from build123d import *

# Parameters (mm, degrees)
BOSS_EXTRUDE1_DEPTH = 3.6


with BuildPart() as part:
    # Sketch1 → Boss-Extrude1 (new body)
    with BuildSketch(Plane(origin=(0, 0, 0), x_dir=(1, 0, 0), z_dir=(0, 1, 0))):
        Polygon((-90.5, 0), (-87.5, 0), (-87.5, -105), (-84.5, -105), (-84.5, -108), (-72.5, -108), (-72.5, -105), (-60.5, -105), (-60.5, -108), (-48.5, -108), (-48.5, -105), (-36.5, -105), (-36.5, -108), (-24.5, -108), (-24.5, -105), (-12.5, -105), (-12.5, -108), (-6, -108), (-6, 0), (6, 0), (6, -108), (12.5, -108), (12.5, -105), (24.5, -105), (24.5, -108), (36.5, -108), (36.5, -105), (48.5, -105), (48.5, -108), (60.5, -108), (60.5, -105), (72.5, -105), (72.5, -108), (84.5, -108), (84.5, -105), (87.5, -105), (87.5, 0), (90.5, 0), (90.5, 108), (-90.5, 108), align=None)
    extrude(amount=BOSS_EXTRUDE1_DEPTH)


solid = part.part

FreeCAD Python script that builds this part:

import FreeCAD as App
import Part
import Sketcher
from FreeCAD import Vector
Q = App.Units.Quantity

doc = App.newDocument("Part")
params = doc.addObject("Spreadsheet::Sheet", "Params")
for row, (alias, value) in enumerate([
    ("sketch1_width", "3 mm"),
    ("sketch1_width2", "12 mm"),
    ("sketch1_width3", "181 mm"),
    ("sketch1_height", "105 mm"),
    ("pad1_length", "3.6 mm"),
], start=1):
    params.set(f"A{row}", alias)
    params.set(f"B{row}", "=" + value)
    params.setAlias(f"B{row}", alias)

body = doc.addObject("PartDesign::Body", "Body")

# Sketch on XZ plane
sketch1 = doc.addObject("Sketcher::SketchObject", "Sketch")
body.addObject(sketch1)
sketch1.AttachmentSupport = (doc.XZ_Plane, [""])
sketch1.MapMode = "FlatFace"
sketch1.addGeometry(Part.LineSegment(Vector(-90.5, 0, 0), Vector(-87.5, 0, 0)), False)
sketch1.addGeometry(Part.LineSegment(Vector(-87.5, 0, 0), Vector(-87.5, 105, 0)), False)
sketch1.addGeometry(Part.LineSegment(Vector(-87.5, 105, 0), Vector(-84.5, 105, 0)), False)
sketch1.addGeometry(Part.LineSegment(Vector(-84.5, 105, 0), Vector(-84.5, 108, 0)), False)
sketch1.addGeometry(Part.LineSegment(Vector(-84.5, 108, 0), Vector(-72.5, 108, 0)), False)
sketch1.addGeometry(Part.LineSegment(Vector(-72.5, 108, 0), Vector(-72.5, 105, 0)), False)
sketch1.addGeometry(Part.LineSegment(Vector(-72.5, 105, 0), Vector(-60.5, 105, 0)), False)
sketch1.addGeometry(Part.LineSegment(Vector(-60.5, 105, 0), Vector(-60.5, 108, 0)), False)
sketch1.addGeometry(Part.LineSegment(Vector(-60.5, 108, 0), Vector(-48.5, 108, 0)), False)
sketch1.addGeometry(Part.LineSegment(Vector(-48.5, 108, 0), Vector(-48.5, 105, 0)), False)
sketch1.addGeometry(Part.LineSegment(Vector(-48.5, 105, 0), Vector(-36.5, 105, 0)), False)
sketch1.addGeometry(Part.LineSegment(Vector(-36.5, 105, 0), Vector(-36.5, 108, 0)), False)
sketch1.addGeometry(Part.LineSegment(Vector(-36.5, 108, 0), Vector(-24.5, 108, 0)), False)
sketch1.addGeometry(Part.LineSegment(Vector(-24.5, 108, 0), Vector(-24.5, 105, 0)), False)
sketch1.addGeometry(Part.LineSegment(Vector(-24.5, 105, 0), Vector(-12.5, 105, 0)), False)
sketch1.addGeometry(Part.LineSegment(Vector(-12.5, 105, 0), Vector(-12.5, 108, 0)), False)
sketch1.addGeometry(Part.LineSegment(Vector(-12.5, 108, 0), Vector(-6, 108, 0)), False)
sketch1.addGeometry(Part.LineSegment(Vector(-6, 108, 0), Vector(-6, 0, 0)), False)
sketch1.addGeometry(Part.LineSegment(Vector(-6, 0, 0), Vector(6, 0, 0)), False)
sketch1.addGeometry(Part.LineSegment(Vector(6, 0, 0), Vector(6, 108, 0)), False)
sketch1.addGeometry(Part.LineSegment(Vector(6, 108, 0), Vector(12.5, 108, 0)), False)
sketch1.addGeometry(Part.LineSegment(Vector(12.5, 108, 0), Vector(12.5, 105, 0)), False)
sketch1.addGeometry(Part.LineSegment(Vector(12.5, 105, 0), Vector(24.5, 105, 0)), False)
sketch1.addGeometry(Part.LineSegment(Vector(24.5, 105, 0), Vector(24.5, 108, 0)), False)
sketch1.addGeometry(Part.LineSegment(Vector(24.5, 108, 0), Vector(36.5, 108, 0)), False)
sketch1.addGeometry(Part.LineSegment(Vector(36.5, 108, 0), Vector(36.5, 105, 0)), False)
sketch1.addGeometry(Part.LineSegment(Vector(36.5, 105, 0), Vector(48.5, 105, 0)), False)
sketch1.addGeometry(Part.LineSegment(Vector(48.5, 105, 0), Vector(48.5, 108, 0)), False)
sketch1.addGeometry(Part.LineSegment(Vector(48.5, 108, 0), Vector(60.5, 108, 0)), False)
sketch1.addGeometry(Part.LineSegment(Vector(60.5, 108, 0), Vector(60.5, 105, 0)), False)
sketch1.addGeometry(Part.LineSegment(Vector(60.5, 105, 0), Vector(72.5, 105, 0)), False)
sketch1.addGeometry(Part.LineSegment(Vector(72.5, 105, 0), Vector(72.5, 108, 0)), False)
sketch1.addGeometry(Part.LineSegment(Vector(72.5, 108, 0), Vector(84.5, 108, 0)), False)
sketch1.addGeometry(Part.LineSegment(Vector(84.5, 108, 0), Vector(84.5, 105, 0)), False)
sketch1.addGeometry(Part.LineSegment(Vector(84.5, 105, 0), Vector(87.5, 105, 0)), False)
sketch1.addGeometry(Part.LineSegment(Vector(87.5, 105, 0), Vector(87.5, 0, 0)), False)
sketch1.addGeometry(Part.LineSegment(Vector(87.5, 0, 0), Vector(90.5, 0, 0)), False)
sketch1.addGeometry(Part.LineSegment(Vector(90.5, 0, 0), Vector(90.5, -108, 0)), False)
sketch1.addGeometry(Part.LineSegment(Vector(90.5, -108, 0), Vector(-90.5, -108, 0)), False)
sketch1.addGeometry(Part.LineSegment(Vector(-90.5, -108, 0), Vector(-90.5, 0, 0)), False)
sketch1.addConstraint(Sketcher.Constraint("Coincident", 0, 2, 1, 1))
sketch1.addConstraint(Sketcher.Constraint("Coincident", 1, 2, 2, 1))
sketch1.addConstraint(Sketcher.Constraint("Coincident", 2, 2, 3, 1))
sketch1.addConstraint(Sketcher.Constraint("Coincident", 3, 2, 4, 1))
sketch1.addConstraint(Sketcher.Constraint("Coincident", 4, 2, 5, 1))
sketch1.addConstraint(Sketcher.Constraint("Coincident", 5, 2, 6, 1))
sketch1.addConstraint(Sketcher.Constraint("Coincident", 6, 2, 7, 1))
sketch1.addConstraint(Sketcher.Constraint("Coincident", 7, 2, 8, 1))
sketch1.addConstraint(Sketcher.Constraint("Coincident", 8, 2, 9, 1))
sketch1.addConstraint(Sketcher.Constraint("Coincident", 9, 2, 10, 1))
sketch1.addConstraint(Sketcher.Constraint("Coincident", 10, 2, 11, 1))
sketch1.addConstraint(Sketcher.Constraint("Coincident", 11, 2, 12, 1))
sketch1.addConstraint(Sketcher.Constraint("Coincident", 12, 2, 13, 1))
sketch1.addConstraint(Sketcher.Constraint("Coincident", 13, 2, 14, 1))
sketch1.addConstraint(Sketcher.Constraint("Coincident", 14, 2, 15, 1))
sketch1.addConstraint(Sketcher.Constraint("Coincident", 15, 2, 16, 1))
sketch1.addConstraint(Sketcher.Constraint("Coincident", 16, 2, 17, 1))
sketch1.addConstraint(Sketcher.Constraint("Coincident", 17, 2, 18, 1))
sketch1.addConstraint(Sketcher.Constraint("Coincident", 18, 2, 19, 1))
sketch1.addConstraint(Sketcher.Constraint("Coincident", 19, 2, 20, 1))
sketch1.addConstraint(Sketcher.Constraint("Coincident", 20, 2, 21, 1))
sketch1.addConstraint(Sketcher.Constraint("Coincident", 21, 2, 22, 1))
sketch1.addConstraint(Sketcher.Constraint("Coincident", 22, 2, 23, 1))
sketch1.addConstraint(Sketcher.Constraint("Coincident", 23, 2, 24, 1))
sketch1.addConstraint(Sketcher.Constraint("Coincident", 24, 2, 25, 1))
sketch1.addConstraint(Sketcher.Constraint("Coincident", 25, 2, 26, 1))
sketch1.addConstraint(Sketcher.Constraint("Coincident", 26, 2, 27, 1))
sketch1.addConstraint(Sketcher.Constraint("Coincident", 27, 2, 28, 1))
sketch1.addConstraint(Sketcher.Constraint("Coincident", 28, 2, 29, 1))
sketch1.addConstraint(Sketcher.Constraint("Coincident", 29, 2, 30, 1))
sketch1.addConstraint(Sketcher.Constraint("Coincident", 30, 2, 31, 1))
sketch1.addConstraint(Sketcher.Constraint("Coincident", 31, 2, 32, 1))
sketch1.addConstraint(Sketcher.Constraint("Coincident", 32, 2, 33, 1))
sketch1.addConstraint(Sketcher.Constraint("Coincident", 33, 2, 34, 1))
sketch1.addConstraint(Sketcher.Constraint("Coincident", 34, 2, 35, 1))
sketch1.addConstraint(Sketcher.Constraint("Coincident", 35, 2, 36, 1))
sketch1.addConstraint(Sketcher.Constraint("Coincident", 36, 2, 37, 1))
sketch1.addConstraint(Sketcher.Constraint("Coincident", 37, 2, 38, 1))
sketch1.addConstraint(Sketcher.Constraint("Coincident", 38, 2, 39, 1))
sketch1.addConstraint(Sketcher.Constraint("Coincident", 39, 2, 0, 1))
sketch1.addConstraint(Sketcher.Constraint("Horizontal", 0))
sketch1.addConstraint(Sketcher.Constraint("Vertical", 1))
sketch1.addConstraint(Sketcher.Constraint("Horizontal", 2))
sketch1.addConstraint(Sketcher.Constraint("Vertical", 3))
sketch1.addConstraint(Sketcher.Constraint("Horizontal", 4))
sketch1.addConstraint(Sketcher.Constraint("Vertical", 5))
sketch1.addConstraint(Sketcher.Constraint("Horizontal", 6))
sketch1.addConstraint(Sketcher.Constraint("Vertical", 7))
sketch1.addConstraint(Sketcher.Constraint("Horizontal", 8))
sketch1.addConstraint(Sketcher.Constraint("Vertical", 9))
sketch1.addConstraint(Sketcher.Constraint("Horizontal", 10))
sketch1.addConstraint(Sketcher.Constraint("Vertical", 11))
sketch1.addConstraint(Sketcher.Constraint("Horizontal", 12))
sketch1.addConstraint(Sketcher.Constraint("Vertical", 13))
sketch1.addConstraint(Sketcher.Constraint("Horizontal", 14))
sketch1.addConstraint(Sketcher.Constraint("Vertical", 15))
sketch1.addConstraint(Sketcher.Constraint("Horizontal", 16))
sketch1.addConstraint(Sketcher.Constraint("Vertical", 17))
sketch1.addConstraint(Sketcher.Constraint("Horizontal", 18))
sketch1.addConstraint(Sketcher.Constraint("Vertical", 19))
sketch1.addConstraint(Sketcher.Constraint("Horizontal", 20))
sketch1.addConstraint(Sketcher.Constraint("Vertical", 21))
sketch1.addConstraint(Sketcher.Constraint("Horizontal", 22))
sketch1.addConstraint(Sketcher.Constraint("Vertical", 23))
sketch1.addConstraint(Sketcher.Constraint("Horizontal", 24))
sketch1.addConstraint(Sketcher.Constraint("Vertical", 25))
sketch1.addConstraint(Sketcher.Constraint("Horizontal", 26))
sketch1.addConstraint(Sketcher.Constraint("Vertical", 27))
sketch1.addConstraint(Sketcher.Constraint("Horizontal", 28))
sketch1.addConstraint(Sketcher.Constraint("Vertical", 29))
sketch1.addConstraint(Sketcher.Constraint("Horizontal", 30))
sketch1.addConstraint(Sketcher.Constraint("Vertical", 31))
sketch1.addConstraint(Sketcher.Constraint("Horizontal", 32))
sketch1.addConstraint(Sketcher.Constraint("Vertical", 33))
sketch1.addConstraint(Sketcher.Constraint("Horizontal", 34))
sketch1.addConstraint(Sketcher.Constraint("Vertical", 35))
sketch1.addConstraint(Sketcher.Constraint("Horizontal", 36))
sketch1.addConstraint(Sketcher.Constraint("Vertical", 37))
sketch1.addConstraint(Sketcher.Constraint("Horizontal", 38))
sketch1.addConstraint(Sketcher.Constraint("Vertical", 39))
sketch1.addConstraint(Sketcher.Constraint("Symmetric", 17, 2, 18, 2, -1, 1))
sketch1.addConstraint(Sketcher.Constraint("Symmetric", 0, 2, 35, 2, -1, 1))
sketch1.addConstraint(Sketcher.Constraint("Symmetric", 15, 2, 20, 2, -2))
sketch1.addConstraint(Sketcher.Constraint("Symmetric", 13, 2, 22, 2, -2))
sketch1.addConstraint(Sketcher.Constraint("Symmetric", 11, 2, 24, 2, -2))
sketch1.addConstraint(Sketcher.Constraint("Symmetric", 9, 2, 26, 2, -2))
sketch1.addConstraint(Sketcher.Constraint("Symmetric", 7, 2, 28, 2, -2))
sketch1.addConstraint(Sketcher.Constraint("Symmetric", 5, 2, 30, 2, -2))
sketch1.addConstraint(Sketcher.Constraint("Symmetric", 3, 2, 32, 2, -2))
sketch1.addConstraint(Sketcher.Constraint("Symmetric", 36, 2, 39, 2, -2))
sketch1.addConstraint(Sketcher.Constraint("Horizontal", 2, 2, 5, 2))
sketch1.addConstraint(Sketcher.Constraint("Horizontal", 4, 2, 7, 2))
sketch1.addConstraint(Sketcher.Constraint("Horizontal", 6, 2, 9, 2))
sketch1.addConstraint(Sketcher.Constraint("Horizontal", 8, 2, 11, 2))
sketch1.addConstraint(Sketcher.Constraint("Horizontal", 10, 2, 13, 2))
sketch1.addConstraint(Sketcher.Constraint("Horizontal", 12, 2, 15, 2))
sketch1.addConstraint(Sketcher.Constraint("Horizontal", 30, 2, 33, 2))
sketch1.addConstraint(Sketcher.Constraint("Equal", 0, 2))
sketch1.addConstraint(Sketcher.Constraint("Equal", 4, 6))
sketch1.addConstraint(Sketcher.Constraint("Equal", 6, 8))
sketch1.addConstraint(Sketcher.Constraint("Equal", 8, 10))
sketch1.addConstraint(Sketcher.Constraint("Equal", 10, 12))
sketch1.addConstraint(Sketcher.Constraint("Equal", 12, 14))
sketch1.addConstraint(Sketcher.Constraint("Equal", 14, 18))
sketch1.addConstraint(Sketcher.Constraint("Equal", 36, 3))
sketch1.addConstraint(Sketcher.Constraint("Equal", 19, 37))
sketch1.addConstraint(Sketcher.Constraint("DistanceX", 0, 1, 0, 2, Q("3 mm")))
sketch1.addConstraint(Sketcher.Constraint("DistanceX", 4, 1, 4, 2, Q("12 mm")))
sketch1.addConstraint(Sketcher.Constraint("DistanceX", 38, 2, 38, 1, Q("181 mm")))
sketch1.addConstraint(Sketcher.Constraint("DistanceY", 1, 1, 1, 2, Q("105 mm")))
sketch1.setExpression("Constraints[106]", "Params.sketch1_width")
sketch1.setExpression("Constraints[107]", "Params.sketch1_width2")
sketch1.setExpression("Constraints[108]", "Params.sketch1_width3")
sketch1.setExpression("Constraints[109]", "Params.sketch1_height")
pad1 = doc.addObject("PartDesign::Pad", "Pad")
body.addObject(pad1)
pad1.Profile = sketch1
pad1.setExpression("Length", "Params.pad1_length")
pad1.Reversed = True

doc.recompute()
